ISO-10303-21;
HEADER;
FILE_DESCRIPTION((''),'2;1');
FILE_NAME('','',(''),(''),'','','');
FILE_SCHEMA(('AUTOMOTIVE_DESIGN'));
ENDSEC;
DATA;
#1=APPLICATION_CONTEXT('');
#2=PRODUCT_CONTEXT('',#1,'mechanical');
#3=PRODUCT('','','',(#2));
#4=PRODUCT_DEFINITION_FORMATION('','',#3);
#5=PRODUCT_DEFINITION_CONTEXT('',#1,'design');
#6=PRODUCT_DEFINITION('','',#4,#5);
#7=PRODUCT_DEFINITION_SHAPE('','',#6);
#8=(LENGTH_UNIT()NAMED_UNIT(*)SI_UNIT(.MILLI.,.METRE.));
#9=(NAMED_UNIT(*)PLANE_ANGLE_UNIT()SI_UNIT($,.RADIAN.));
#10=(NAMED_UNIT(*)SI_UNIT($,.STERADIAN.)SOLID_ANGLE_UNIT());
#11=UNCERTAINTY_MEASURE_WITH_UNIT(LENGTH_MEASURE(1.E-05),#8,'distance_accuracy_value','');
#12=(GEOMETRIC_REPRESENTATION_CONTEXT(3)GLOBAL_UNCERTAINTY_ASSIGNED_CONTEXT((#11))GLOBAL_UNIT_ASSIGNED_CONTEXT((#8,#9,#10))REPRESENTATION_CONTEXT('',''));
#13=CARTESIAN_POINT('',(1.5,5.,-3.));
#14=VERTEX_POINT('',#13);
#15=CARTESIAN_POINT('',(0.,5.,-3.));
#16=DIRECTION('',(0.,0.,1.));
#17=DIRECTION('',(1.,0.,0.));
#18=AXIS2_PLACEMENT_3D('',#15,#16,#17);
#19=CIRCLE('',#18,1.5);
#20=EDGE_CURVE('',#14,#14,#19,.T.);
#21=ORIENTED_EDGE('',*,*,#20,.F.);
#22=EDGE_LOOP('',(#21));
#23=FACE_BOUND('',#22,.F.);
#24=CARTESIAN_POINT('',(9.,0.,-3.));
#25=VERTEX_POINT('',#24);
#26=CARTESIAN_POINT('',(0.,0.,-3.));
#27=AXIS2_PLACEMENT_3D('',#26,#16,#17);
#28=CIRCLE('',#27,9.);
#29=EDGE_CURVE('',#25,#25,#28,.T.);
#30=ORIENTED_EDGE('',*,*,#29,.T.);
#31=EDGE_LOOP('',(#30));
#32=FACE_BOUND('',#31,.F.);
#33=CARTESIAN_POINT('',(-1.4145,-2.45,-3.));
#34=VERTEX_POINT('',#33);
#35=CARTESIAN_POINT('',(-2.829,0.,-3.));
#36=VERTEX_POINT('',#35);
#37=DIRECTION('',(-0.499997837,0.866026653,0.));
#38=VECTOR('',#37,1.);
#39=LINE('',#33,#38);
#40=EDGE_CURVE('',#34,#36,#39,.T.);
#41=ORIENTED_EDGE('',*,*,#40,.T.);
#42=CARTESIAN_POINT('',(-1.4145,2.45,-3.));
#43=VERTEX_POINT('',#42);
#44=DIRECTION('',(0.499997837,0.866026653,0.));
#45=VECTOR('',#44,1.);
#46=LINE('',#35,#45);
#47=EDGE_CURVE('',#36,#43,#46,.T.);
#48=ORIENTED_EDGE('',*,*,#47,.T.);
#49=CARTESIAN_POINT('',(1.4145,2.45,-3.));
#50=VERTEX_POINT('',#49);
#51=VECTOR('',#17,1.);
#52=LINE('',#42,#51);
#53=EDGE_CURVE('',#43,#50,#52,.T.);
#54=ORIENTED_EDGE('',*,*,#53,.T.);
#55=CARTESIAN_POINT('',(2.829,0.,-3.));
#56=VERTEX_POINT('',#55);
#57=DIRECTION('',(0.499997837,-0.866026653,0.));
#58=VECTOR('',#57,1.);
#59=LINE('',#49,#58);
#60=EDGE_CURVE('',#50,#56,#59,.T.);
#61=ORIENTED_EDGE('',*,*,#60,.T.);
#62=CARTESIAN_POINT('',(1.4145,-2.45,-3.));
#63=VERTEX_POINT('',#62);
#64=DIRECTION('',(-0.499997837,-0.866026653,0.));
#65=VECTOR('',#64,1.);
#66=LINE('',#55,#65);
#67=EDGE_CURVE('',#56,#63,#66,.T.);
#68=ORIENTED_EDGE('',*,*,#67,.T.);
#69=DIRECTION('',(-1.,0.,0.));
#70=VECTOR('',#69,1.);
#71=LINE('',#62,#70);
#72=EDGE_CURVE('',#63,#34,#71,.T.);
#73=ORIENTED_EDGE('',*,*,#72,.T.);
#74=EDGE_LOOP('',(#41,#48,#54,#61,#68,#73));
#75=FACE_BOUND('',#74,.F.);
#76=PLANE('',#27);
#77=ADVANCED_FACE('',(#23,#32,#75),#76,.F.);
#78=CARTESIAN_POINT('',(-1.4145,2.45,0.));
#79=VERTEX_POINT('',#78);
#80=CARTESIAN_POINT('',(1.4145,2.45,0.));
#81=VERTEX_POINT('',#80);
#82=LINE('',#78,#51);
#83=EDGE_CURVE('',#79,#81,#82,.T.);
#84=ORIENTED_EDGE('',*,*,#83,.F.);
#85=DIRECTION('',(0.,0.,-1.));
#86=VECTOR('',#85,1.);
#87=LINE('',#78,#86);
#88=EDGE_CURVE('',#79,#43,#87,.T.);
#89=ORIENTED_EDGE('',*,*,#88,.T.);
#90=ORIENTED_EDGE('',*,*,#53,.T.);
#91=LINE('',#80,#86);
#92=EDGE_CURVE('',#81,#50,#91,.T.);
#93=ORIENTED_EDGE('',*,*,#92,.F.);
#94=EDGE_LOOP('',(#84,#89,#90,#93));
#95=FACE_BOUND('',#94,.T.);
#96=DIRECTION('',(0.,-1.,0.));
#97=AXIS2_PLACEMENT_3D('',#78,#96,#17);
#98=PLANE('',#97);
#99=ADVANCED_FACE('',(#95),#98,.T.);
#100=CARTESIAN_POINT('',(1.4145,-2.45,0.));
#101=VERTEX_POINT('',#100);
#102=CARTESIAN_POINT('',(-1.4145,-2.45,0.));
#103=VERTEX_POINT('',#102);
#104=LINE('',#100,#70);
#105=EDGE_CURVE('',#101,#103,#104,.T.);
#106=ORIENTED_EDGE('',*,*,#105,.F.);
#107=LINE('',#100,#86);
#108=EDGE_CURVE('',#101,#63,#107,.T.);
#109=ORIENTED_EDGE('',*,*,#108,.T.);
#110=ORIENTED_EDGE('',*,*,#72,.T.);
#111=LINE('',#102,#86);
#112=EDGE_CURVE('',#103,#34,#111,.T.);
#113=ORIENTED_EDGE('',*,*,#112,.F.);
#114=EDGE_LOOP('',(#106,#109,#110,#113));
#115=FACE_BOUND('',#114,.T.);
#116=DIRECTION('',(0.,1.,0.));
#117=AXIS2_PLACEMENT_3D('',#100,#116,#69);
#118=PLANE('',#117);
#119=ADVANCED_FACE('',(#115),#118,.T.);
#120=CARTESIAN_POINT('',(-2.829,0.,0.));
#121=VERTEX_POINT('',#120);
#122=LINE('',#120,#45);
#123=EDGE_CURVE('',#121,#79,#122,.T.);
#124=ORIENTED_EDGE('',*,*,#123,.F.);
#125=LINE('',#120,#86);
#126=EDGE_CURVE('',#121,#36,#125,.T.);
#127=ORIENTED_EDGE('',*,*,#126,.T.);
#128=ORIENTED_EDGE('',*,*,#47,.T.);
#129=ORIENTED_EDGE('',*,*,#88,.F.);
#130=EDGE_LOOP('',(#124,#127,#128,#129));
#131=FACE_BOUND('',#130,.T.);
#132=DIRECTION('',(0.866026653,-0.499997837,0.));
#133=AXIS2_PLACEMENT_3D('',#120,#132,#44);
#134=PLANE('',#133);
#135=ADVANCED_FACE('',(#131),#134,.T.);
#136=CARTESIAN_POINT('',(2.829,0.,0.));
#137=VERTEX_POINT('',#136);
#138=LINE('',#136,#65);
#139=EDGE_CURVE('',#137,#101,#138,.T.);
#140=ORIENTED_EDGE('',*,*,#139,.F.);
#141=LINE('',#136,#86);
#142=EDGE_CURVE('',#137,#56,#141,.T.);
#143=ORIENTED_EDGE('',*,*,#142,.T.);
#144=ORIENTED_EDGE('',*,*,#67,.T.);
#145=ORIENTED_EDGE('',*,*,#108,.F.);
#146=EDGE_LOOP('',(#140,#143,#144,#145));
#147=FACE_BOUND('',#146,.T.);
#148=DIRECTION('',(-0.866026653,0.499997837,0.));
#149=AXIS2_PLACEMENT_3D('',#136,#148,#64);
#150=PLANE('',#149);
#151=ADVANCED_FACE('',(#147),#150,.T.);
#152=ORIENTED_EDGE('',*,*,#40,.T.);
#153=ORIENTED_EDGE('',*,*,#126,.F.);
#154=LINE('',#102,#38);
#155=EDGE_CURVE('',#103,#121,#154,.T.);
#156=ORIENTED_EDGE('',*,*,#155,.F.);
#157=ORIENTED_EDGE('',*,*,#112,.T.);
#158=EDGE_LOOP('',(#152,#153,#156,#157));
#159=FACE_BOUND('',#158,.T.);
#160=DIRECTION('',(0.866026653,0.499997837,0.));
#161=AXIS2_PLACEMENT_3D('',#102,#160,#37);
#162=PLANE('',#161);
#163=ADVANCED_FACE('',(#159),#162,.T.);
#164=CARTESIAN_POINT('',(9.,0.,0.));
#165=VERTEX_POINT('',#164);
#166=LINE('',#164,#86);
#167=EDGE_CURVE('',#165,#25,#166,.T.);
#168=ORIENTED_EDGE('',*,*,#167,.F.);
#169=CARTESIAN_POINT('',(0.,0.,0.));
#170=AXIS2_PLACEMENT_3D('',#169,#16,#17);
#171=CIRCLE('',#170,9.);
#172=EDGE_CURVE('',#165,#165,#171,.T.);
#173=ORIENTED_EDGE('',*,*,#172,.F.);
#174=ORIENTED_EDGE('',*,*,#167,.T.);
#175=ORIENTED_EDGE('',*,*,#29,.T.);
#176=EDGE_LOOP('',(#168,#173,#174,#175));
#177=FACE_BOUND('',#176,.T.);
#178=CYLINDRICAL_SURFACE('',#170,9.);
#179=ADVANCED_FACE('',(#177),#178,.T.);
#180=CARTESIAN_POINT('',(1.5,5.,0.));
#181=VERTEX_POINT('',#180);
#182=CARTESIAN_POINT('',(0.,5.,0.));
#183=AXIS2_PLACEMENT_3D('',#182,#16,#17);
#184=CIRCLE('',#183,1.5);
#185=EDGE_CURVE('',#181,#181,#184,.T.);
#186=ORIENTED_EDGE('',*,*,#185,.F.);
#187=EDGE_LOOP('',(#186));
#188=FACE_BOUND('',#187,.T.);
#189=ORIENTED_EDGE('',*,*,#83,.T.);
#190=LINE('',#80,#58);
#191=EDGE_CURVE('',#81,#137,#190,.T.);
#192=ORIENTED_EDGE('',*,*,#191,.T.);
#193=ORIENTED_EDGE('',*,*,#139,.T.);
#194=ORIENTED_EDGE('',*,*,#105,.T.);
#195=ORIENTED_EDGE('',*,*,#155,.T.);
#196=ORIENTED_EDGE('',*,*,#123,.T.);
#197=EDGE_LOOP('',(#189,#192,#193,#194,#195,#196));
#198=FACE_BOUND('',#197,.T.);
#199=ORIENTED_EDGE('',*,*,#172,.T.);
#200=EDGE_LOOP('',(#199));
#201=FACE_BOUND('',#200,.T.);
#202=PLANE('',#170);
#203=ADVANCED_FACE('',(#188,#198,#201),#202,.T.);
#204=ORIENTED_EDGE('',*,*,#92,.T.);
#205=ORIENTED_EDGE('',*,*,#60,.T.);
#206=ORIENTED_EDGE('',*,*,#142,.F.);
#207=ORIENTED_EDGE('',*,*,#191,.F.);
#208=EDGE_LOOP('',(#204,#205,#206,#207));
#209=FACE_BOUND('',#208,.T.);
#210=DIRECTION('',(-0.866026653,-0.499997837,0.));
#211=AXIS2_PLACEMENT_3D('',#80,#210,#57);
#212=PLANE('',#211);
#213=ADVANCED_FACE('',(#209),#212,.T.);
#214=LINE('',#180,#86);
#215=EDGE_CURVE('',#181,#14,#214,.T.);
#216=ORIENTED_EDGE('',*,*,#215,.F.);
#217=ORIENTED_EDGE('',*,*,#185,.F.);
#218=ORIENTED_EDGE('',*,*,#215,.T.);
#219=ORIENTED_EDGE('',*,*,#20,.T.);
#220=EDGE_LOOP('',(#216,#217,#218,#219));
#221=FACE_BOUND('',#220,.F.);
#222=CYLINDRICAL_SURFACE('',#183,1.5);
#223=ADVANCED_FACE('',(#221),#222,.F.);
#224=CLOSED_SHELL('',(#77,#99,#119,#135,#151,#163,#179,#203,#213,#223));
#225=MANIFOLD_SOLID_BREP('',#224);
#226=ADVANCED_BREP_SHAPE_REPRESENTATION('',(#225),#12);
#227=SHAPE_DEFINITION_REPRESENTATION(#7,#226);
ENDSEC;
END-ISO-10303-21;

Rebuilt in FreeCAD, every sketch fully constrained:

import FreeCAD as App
import Part
import Sketcher

V = App.Vector
Q = App.Units.Quantity


def add_polygon(sketch, points):
    """Adds a closed chain of lines whose ends are joined by coincident constraints."""
    first, n = sketch.GeometryCount, len(points)
    for a, b in zip(points, points[1:] + points[:1]):
        sketch.addGeometry(Part.LineSegment(App.Vector(*a, 0), App.Vector(*b, 0)), False)
    for i in range(n):
        sketch.addConstraint(Sketcher.Constraint("Coincident", first + i, 2, first + (i + 1) % n, 1))

doc = App.newDocument("Part")
params = doc.addObject("Spreadsheet::Sheet", "Params")
for row, (alias, value) in enumerate([
    ("sketch1_diameter", "18 mm"),
    ("sketch1_diameter2", "3 mm"),
    ("pad1_length", "3 mm"),
], start=1):
    params.set(f"A{row}", alias)
    params.set(f"B{row}", "=" + value)
    params.setAlias(f"B{row}", alias)

body = doc.addObject("PartDesign::Body", "Body")

# Sketch on XY plane
sketch1 = body.newObject("Sketcher::SketchObject", "Sketch")
sketch1.AttachmentSupport = (doc.getObject("XY_Plane"), [""])
sketch1.MapMode = "FlatFace"
sketch1.addGeometry(Part.Circle(V(0, 0, 0), V(0, 0, 1), 9), False)  # 0
add_polygon(sketch1, [(-1.4145, 2.45), (1.4145, 2.45), (2.829, 0), (1.4145, -2.45), (-1.4145, -2.45), (-2.829, 0)])  # lines 1-6
sketch1.addGeometry(Part.Circle(V(0, 5, 0), V(0, 0, 1), 1.5), False)  # 7
sketch1.addConstraint(Sketcher.Constraint("Horizontal", 1))
sketch1.addConstraint(Sketcher.Constraint("Horizontal", 4))
sketch1.addConstraint(Sketcher.Constraint("Coincident", 0, 3, -1, 1))
sketch1.addConstraint(Sketcher.Constraint("Symmetric", 1, 2, 4, 2, -1, 1))
sketch1.addConstraint(Sketcher.Constraint("Symmetric", 2, 2, 5, 2, -1, 1))
sketch1.addConstraint(Sketcher.Constraint("PointOnObject", 7, 3, -2))
sketch1.addConstraint(Sketcher.Constraint("PointOnObject", 2, 2, -1))
sketch1.addConstraint(Sketcher.Constraint("Parallel", 3, 6))
sketch1.addConstraint(Sketcher.Constraint("Vertical", 1, 2, 3, 2))
sketch1.addConstraint(Sketcher.Constraint("Diameter", 0, Q("18 mm")))
sketch1.addConstraint(Sketcher.Constraint("Diameter", 7, Q("3 mm")))
sketch1.addConstraint(Sketcher.Constraint("DistanceY", -1, 1, 7, 3, Q("5 mm")))
sketch1.addConstraint(Sketcher.Constraint("DistanceY", 3, 2, 1, 2, Q("4.9 mm")))
sketch1.addConstraint(Sketcher.Constraint("Angle", 2, Q("-60.0001 deg")))
sketch1.addConstraint(Sketcher.Constraint("DistanceX", 1, 1, 1, 2, Q("2.829 mm")))
sketch1.setExpression("Constraints[15]", "Params.sketch1_diameter")
sketch1.setExpression("Constraints[16]", "Params.sketch1_diameter2")
pad1 = body.newObject("PartDesign::Pad", "Pad")
pad1.Profile = sketch1
pad1.setExpression("Length", "Params.pad1_length")
pad1.Reversed = True

doc.recompute()
